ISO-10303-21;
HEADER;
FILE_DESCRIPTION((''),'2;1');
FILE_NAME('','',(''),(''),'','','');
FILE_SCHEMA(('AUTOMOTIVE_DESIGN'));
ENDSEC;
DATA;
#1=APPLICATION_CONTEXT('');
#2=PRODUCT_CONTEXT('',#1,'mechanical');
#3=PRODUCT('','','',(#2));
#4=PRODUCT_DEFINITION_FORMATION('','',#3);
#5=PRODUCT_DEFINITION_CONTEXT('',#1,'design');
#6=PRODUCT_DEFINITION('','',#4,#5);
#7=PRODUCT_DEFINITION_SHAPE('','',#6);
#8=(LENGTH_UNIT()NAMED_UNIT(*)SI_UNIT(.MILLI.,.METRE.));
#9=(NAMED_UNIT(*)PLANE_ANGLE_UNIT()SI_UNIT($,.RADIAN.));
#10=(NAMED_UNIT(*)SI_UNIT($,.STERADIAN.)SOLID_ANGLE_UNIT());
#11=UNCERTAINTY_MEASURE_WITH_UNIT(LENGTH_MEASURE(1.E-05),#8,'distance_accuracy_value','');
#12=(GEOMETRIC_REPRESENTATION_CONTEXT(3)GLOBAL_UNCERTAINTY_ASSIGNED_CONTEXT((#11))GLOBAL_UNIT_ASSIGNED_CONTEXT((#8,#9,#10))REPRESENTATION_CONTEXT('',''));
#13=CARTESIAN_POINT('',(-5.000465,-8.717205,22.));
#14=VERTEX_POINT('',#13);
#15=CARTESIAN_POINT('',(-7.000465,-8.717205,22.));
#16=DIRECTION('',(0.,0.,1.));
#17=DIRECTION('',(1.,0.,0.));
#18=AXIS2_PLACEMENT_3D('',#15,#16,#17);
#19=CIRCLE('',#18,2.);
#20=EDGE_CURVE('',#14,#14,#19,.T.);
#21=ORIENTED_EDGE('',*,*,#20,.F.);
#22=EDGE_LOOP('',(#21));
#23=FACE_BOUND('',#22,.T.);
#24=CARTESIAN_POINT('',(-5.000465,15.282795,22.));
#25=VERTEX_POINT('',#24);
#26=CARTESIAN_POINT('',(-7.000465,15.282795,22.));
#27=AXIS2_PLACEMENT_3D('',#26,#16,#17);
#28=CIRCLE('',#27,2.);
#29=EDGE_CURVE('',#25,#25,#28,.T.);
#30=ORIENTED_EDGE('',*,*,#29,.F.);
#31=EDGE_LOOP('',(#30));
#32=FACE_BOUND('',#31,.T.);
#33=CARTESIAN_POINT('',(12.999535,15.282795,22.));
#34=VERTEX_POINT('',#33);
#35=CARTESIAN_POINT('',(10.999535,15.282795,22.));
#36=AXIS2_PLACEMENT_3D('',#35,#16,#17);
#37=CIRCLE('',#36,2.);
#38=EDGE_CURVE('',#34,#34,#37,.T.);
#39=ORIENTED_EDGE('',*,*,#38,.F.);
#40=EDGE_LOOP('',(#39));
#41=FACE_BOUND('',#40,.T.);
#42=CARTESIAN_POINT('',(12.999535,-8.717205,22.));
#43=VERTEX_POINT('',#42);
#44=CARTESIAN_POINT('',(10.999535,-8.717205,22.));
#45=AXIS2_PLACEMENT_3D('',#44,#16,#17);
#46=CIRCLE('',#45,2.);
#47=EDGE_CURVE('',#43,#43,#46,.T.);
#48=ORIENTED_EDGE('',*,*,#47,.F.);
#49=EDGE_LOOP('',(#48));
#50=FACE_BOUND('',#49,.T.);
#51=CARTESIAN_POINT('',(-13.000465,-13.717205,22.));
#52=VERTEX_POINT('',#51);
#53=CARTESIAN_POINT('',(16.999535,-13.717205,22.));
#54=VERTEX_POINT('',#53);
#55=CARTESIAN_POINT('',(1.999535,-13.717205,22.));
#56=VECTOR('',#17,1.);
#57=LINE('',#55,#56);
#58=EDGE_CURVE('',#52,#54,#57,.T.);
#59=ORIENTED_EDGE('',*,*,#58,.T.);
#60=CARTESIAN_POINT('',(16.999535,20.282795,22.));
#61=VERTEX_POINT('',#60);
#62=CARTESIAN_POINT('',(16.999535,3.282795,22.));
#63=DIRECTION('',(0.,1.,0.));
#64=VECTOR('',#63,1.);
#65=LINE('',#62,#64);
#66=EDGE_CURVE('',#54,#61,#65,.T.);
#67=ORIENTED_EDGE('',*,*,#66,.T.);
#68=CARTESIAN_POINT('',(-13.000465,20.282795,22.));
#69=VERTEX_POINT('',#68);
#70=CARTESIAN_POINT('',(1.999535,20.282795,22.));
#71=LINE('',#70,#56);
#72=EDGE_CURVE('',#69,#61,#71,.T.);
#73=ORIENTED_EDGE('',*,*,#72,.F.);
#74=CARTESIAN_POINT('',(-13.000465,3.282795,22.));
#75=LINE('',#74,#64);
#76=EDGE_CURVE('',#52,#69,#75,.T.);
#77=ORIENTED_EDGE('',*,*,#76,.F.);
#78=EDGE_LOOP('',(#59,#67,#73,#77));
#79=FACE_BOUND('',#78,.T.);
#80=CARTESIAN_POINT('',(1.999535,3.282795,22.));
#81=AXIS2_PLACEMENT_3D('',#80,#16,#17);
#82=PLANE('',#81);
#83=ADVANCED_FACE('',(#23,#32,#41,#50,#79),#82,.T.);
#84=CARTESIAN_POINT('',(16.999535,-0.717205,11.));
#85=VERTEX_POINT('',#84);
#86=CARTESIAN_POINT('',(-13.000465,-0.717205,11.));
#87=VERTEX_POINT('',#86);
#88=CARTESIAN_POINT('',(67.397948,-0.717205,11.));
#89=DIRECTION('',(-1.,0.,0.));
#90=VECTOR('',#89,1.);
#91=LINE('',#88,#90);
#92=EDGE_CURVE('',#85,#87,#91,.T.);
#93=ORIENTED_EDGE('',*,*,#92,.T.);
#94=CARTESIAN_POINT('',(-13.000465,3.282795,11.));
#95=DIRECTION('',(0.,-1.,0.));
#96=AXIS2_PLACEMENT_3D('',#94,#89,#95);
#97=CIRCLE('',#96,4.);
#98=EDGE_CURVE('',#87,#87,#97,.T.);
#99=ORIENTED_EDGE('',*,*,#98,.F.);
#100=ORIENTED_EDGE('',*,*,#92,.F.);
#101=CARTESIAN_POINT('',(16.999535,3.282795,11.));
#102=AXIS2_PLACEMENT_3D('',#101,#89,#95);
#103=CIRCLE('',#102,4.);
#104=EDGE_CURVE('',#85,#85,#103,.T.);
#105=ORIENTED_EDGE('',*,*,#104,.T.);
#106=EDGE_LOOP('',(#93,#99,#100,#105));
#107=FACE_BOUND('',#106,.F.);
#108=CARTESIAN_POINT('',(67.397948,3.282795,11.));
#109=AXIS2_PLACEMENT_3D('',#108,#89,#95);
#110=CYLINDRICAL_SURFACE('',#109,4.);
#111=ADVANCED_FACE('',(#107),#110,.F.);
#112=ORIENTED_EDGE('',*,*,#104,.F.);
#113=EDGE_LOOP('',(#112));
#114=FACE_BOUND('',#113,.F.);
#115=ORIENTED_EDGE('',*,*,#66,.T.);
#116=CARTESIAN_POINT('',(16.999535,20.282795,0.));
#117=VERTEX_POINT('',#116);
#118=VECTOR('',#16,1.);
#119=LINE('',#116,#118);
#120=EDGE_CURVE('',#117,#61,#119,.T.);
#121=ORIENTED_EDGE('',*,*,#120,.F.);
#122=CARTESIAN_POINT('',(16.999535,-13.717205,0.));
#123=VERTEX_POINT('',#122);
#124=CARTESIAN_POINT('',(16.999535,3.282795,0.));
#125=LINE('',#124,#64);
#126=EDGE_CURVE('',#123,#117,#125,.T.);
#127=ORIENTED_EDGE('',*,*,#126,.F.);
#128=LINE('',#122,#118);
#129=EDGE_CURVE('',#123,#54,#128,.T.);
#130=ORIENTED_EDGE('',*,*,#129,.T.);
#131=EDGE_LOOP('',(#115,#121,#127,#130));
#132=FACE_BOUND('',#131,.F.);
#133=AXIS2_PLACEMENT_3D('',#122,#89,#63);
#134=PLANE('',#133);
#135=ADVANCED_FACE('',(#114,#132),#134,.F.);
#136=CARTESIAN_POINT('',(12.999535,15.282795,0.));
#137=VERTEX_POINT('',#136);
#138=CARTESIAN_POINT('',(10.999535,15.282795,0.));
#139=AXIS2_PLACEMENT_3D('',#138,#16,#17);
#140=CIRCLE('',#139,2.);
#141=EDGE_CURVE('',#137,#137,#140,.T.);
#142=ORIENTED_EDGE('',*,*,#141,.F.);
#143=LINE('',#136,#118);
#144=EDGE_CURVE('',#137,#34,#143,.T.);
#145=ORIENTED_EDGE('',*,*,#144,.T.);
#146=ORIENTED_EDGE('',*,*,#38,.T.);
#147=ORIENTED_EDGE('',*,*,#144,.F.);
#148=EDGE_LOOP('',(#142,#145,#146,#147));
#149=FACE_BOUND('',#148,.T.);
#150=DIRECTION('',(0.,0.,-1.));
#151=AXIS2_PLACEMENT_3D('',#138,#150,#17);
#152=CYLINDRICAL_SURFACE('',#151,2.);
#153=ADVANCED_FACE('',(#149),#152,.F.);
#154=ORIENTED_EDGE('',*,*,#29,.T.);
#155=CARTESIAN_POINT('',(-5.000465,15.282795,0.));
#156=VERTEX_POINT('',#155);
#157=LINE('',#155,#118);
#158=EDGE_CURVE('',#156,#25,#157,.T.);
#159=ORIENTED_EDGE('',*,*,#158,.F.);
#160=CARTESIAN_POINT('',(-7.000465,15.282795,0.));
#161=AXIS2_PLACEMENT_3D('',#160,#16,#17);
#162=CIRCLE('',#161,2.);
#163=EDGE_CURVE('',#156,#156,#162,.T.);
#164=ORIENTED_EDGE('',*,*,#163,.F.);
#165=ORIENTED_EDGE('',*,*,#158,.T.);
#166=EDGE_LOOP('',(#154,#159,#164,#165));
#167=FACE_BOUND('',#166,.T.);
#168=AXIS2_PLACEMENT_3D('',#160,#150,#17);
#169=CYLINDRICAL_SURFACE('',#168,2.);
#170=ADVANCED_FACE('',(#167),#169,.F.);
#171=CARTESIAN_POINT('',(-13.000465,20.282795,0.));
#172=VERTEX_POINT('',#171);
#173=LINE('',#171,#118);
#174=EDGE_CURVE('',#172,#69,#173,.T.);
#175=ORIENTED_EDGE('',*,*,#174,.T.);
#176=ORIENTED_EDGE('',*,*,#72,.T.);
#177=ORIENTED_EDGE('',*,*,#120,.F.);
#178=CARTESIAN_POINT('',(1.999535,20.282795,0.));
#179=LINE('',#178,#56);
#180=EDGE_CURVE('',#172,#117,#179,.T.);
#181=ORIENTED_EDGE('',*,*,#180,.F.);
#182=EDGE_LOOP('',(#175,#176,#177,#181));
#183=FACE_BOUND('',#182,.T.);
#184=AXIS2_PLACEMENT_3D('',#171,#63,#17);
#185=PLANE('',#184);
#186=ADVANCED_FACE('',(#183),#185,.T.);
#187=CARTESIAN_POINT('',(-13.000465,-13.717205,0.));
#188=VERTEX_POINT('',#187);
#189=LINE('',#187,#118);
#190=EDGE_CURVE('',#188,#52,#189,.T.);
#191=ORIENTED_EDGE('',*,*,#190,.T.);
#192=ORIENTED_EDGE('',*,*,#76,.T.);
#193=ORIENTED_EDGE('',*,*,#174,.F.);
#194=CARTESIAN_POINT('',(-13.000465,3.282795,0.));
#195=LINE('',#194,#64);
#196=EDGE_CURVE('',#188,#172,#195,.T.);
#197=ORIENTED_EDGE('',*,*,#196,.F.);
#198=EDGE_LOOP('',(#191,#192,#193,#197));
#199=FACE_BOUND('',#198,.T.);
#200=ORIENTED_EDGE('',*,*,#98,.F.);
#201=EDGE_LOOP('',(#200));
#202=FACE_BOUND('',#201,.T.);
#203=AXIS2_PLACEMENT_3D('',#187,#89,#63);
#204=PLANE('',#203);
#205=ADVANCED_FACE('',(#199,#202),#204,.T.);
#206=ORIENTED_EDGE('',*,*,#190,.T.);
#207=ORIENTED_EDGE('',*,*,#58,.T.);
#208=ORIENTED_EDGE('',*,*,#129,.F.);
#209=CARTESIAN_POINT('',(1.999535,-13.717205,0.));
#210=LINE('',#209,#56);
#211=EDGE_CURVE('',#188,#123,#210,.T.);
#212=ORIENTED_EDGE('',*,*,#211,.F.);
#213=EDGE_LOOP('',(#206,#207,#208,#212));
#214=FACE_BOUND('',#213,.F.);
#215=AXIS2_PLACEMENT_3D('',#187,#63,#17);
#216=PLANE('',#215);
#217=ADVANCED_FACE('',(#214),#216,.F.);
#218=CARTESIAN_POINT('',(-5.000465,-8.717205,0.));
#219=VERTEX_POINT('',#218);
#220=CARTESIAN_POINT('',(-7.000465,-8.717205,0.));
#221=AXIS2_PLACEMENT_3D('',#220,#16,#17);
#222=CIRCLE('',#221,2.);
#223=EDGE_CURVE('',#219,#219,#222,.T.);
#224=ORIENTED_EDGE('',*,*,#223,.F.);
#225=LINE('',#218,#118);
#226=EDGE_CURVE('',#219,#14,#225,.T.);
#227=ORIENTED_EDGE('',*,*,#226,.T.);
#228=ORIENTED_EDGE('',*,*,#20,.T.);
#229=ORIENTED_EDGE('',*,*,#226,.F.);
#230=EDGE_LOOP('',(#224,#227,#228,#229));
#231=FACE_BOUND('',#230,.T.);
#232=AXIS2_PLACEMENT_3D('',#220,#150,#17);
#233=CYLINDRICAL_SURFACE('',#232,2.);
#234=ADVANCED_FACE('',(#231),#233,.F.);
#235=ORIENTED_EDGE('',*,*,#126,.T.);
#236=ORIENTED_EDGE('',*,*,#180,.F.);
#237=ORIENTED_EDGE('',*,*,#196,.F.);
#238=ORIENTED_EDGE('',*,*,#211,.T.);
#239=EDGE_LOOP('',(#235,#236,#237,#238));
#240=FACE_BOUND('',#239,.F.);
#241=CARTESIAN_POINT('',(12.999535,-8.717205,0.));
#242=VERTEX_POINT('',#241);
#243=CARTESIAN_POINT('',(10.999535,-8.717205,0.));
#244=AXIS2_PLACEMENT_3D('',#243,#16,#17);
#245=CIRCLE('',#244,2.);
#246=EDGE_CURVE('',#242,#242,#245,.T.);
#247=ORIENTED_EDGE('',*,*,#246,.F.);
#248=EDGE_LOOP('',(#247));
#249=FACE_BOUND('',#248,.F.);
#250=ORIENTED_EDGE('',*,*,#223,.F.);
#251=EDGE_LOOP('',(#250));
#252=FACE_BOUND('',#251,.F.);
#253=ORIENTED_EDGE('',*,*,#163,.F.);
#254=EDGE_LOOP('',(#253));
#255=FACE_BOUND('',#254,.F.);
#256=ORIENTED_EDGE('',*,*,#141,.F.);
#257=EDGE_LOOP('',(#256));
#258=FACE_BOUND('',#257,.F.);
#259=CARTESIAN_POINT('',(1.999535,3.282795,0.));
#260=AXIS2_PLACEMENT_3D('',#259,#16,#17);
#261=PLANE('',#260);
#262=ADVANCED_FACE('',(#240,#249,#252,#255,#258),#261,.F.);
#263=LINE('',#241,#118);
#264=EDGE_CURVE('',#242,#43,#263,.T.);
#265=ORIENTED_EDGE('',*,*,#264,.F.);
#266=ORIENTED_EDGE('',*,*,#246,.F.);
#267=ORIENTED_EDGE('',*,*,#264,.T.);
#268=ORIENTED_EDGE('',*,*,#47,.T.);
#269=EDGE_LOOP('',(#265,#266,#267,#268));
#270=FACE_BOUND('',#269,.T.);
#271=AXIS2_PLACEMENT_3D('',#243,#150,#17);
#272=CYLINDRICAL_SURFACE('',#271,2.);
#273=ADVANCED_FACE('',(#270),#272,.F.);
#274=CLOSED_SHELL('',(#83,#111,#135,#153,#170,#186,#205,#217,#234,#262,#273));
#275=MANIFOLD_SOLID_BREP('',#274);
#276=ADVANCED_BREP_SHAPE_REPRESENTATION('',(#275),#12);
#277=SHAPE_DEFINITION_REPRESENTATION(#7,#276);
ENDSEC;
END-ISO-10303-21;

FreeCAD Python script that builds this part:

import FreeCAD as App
import Part
import Sketcher
Q = App.Units.Quantity

doc = App.newDocument("Part")
body = doc.addObject("PartDesign::Body", "Body")

sketch1 = doc.addObject("Sketcher::SketchObject", "Sketch")
body.addObject(sketch1)
sketch1.AttachmentSupport = (doc.XY_Plane, [""])
sketch1.MapMode = "FlatFace"
sketch1.addGeometry([
    Part.LineSegment(App.Vector(-13, 20.3, 0), App.Vector(-13, -13.7, 0)),
    Part.LineSegment(App.Vector(-13, -13.7, 0), App.Vector(17, -13.7, 0)),
    Part.LineSegment(App.Vector(17, -13.7, 0), App.Vector(17, 20.3, 0)),
    Part.LineSegment(App.Vector(17, 20.3, 0), App.Vector(-13, 20.3, 0)),
    Part.Circle(App.Vector(-7, -8.7, 0), App.Vector(0, 0, 1), 2),
    Part.Circle(App.Vector(11, -8.7, 0), App.Vector(0, 0, 1), 2),
    Part.Circle(App.Vector(-7, 15.3, 0), App.Vector(0, 0, 1), 2),
    Part.Circle(App.Vector(11, 15.3, 0), App.Vector(0, 0, 1), 2),
], False)
sketch1.addConstraint([
    Sketcher.Constraint("Coincident", 0, 2, 1, 1),
    Sketcher.Constraint("Coincident", 1, 2, 2, 1),
    Sketcher.Constraint("Coincident", 2, 2, 3, 1),
    Sketcher.Constraint("Coincident", 3, 2, 0, 1),
    Sketcher.Constraint("Vertical", 0),
    Sketcher.Constraint("Horizontal", 1),
    Sketcher.Constraint("Vertical", 2),
    Sketcher.Constraint("Horizontal", 3),
    Sketcher.Constraint("Equal", 4, 5),
    Sketcher.Constraint("Equal", 5, 6),
    Sketcher.Constraint("Equal", 6, 7),
    Sketcher.Constraint("Horizontal", 4, 3, 5, 3),
    Sketcher.Constraint("Horizontal", 6, 3, 7, 3),
    Sketcher.Constraint("Vertical", 4, 3, 6, 3),
    Sketcher.Constraint("Vertical", 5, 3, 7, 3),
    Sketcher.Constraint("Diameter", 4, Q("4 mm")),
    Sketcher.Constraint("DistanceX", 1, 1, 1, 2, Q("30 mm")),
    Sketcher.Constraint("DistanceY", 0, 2, 0, 1, Q("34 mm")),
    Sketcher.Constraint("DistanceX", 4, 3, 5, 3, Q("18 mm")),
    Sketcher.Constraint("DistanceY", 4, 3, 6, 3, Q("24 mm")),
    Sketcher.Constraint("DistanceX", 0, 2, 4, 3, Q("6 mm")),
    Sketcher.Constraint("DistanceY", 0, 2, 4, 3, Q("5 mm")),
    Sketcher.Constraint("DistanceX", 4, 3, -1, 1, Q("7.000465 mm")),
    Sketcher.Constraint("DistanceY", 4, 3, -1, 1, Q("8.717205 mm")),
])
pad1 = doc.addObject("PartDesign::Pad", "Pad")
body.addObject(pad1)
pad1.Profile = sketch1
pad1.Length = 22

sketch2 = doc.addObject("Sketcher::SketchObject", "Sketch001")
body.addObject(sketch2)
sketch2.AttachmentSupport = (doc.YZ_Plane, [""])
sketch2.MapMode = "FlatFace"
sketch2.AttachmentOffset = App.Placement(App.Vector(0, 0, 16.999535), App.Rotation())
sketch2.addGeometry(Part.Circle(App.Vector(3.3, 11, 0), App.Vector(0, 0, 1), 4), False)
sketch2.addConstraint([
    Sketcher.Constraint("Diameter", 0, Q("8 mm")),
    Sketcher.Constraint("DistanceY", -1, 1, 0, 3, Q("11 mm")),
    Sketcher.Constraint("DistanceX", -1, 1, 0, 3, Q("3.282795 mm")),
])
doc.recompute()
hole = doc.addObject("PartDesign::Hole", "Hole")
body.addObject(hole)
hole.Profile = sketch2
hole.ThreadType = "None"
hole.Diameter = 8
hole.DepthType = "ThroughAll"

doc.recompute()
